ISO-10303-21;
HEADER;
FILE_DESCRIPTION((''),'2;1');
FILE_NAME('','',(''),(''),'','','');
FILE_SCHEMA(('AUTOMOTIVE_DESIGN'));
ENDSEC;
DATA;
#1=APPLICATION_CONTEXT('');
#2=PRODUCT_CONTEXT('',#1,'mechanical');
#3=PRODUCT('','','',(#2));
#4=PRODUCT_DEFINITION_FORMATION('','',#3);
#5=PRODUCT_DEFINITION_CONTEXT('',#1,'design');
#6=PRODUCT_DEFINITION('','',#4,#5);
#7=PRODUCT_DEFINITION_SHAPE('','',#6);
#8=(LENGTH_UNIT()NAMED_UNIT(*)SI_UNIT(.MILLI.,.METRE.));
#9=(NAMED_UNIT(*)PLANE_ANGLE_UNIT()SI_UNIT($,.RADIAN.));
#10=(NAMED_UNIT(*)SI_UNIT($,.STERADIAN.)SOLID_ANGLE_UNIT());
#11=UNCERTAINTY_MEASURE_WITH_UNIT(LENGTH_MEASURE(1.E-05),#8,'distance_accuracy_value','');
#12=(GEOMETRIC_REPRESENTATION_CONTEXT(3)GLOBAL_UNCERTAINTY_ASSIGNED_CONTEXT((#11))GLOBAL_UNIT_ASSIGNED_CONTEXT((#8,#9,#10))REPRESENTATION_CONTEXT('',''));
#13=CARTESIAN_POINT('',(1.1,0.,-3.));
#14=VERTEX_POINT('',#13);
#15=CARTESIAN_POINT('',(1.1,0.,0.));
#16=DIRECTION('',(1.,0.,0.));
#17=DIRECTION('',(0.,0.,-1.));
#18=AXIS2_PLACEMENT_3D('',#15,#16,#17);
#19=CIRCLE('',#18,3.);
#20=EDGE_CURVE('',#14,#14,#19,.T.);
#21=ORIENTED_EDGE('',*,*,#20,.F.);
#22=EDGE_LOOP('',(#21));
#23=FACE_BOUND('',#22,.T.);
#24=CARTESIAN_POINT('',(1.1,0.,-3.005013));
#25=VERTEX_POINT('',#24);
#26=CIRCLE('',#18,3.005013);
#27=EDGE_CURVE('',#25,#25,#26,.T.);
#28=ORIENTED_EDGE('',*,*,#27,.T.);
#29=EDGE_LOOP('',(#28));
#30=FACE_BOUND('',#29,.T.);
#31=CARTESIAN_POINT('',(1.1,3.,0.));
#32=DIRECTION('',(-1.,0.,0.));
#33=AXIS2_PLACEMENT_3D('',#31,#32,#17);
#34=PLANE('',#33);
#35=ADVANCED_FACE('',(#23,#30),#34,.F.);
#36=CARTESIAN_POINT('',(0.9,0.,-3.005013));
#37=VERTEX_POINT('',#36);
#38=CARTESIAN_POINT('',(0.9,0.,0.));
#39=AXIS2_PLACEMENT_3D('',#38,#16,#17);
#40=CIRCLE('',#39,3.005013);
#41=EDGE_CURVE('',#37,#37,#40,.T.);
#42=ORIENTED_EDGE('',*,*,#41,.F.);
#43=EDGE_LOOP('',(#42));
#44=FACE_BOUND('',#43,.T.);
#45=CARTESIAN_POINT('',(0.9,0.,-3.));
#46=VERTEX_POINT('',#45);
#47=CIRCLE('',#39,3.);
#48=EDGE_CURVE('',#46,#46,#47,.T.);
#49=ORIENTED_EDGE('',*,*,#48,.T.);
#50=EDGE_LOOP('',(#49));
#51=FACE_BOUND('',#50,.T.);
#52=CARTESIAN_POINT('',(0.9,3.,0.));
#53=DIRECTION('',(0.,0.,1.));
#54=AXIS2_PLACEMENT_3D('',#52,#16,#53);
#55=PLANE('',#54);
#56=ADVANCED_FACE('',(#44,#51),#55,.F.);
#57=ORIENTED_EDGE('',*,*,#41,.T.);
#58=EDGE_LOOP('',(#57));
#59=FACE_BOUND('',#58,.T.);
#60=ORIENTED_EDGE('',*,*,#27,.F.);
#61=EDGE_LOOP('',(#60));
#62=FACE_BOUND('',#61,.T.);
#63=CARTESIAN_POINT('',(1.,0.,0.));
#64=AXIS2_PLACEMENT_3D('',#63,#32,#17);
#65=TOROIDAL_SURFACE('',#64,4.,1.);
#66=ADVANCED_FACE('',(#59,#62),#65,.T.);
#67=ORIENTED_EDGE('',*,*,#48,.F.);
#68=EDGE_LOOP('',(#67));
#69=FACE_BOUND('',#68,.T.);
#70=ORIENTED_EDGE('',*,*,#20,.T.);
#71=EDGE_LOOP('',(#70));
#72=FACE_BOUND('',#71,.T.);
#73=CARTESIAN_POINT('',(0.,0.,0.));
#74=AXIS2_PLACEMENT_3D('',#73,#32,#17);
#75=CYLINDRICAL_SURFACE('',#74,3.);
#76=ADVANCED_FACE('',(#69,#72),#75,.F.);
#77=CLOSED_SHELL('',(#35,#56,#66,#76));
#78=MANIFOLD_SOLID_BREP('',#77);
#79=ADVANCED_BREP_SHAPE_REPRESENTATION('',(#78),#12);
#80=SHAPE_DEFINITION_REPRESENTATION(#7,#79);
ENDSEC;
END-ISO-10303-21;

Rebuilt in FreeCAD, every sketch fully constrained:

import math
import FreeCAD as App
import Part
import Sketcher
Q = App.Units.Quantity

doc = App.newDocument("Part")
params = doc.addObject("Spreadsheet::Sheet", "Params")
for row, (alias, value) in enumerate([
    ("sketch1_radius", "1 mm"),
    ("sketch1_width", "0.2 mm"),
    ("revolution_angle", "360 deg"),
], start=1):
    params.set(f"A{row}", alias)
    params.set(f"B{row}", "=" + value)
    params.setAlias(f"B{row}", alias)

body = doc.addObject("PartDesign::Body", "Body")

# Sketch on XY plane
sketch1 = doc.addObject("Sketcher::SketchObject", "Sketch")
body.addObject(sketch1)
sketch1.AttachmentSupport = (doc.XY_Plane, [""])
sketch1.MapMode = "FlatFace"
sketch1.addGeometry([
    Part.LineSegment(App.Vector(0.9, 3, 0), App.Vector(1.1, 3, 0)),
    Part.LineSegment(App.Vector(1.1, 3, 0), App.Vector(1.1, 3.005, 0)),
    Part.ArcOfCircle(Part.Circle(App.Vector(1, 4, 0), App.Vector(0, 0, 1), 1), math.radians(-84), math.radians(264)),
    Part.LineSegment(App.Vector(0.9, 3.005, 0), App.Vector(0.9, 3, 0)),
], False)
sketch1.addConstraint([
    Sketcher.Constraint("Coincident", 0, 2, 1, 1),
    Sketcher.Constraint("Coincident", 1, 2, 2, 1),
    Sketcher.Constraint("Coincident", 2, 2, 3, 1),
    Sketcher.Constraint("Coincident", 3, 2, 0, 1),
    Sketcher.Constraint("Horizontal", 0),
    Sketcher.Constraint("Vertical", 1),
    Sketcher.Constraint("Vertical", 3),
    Sketcher.Constraint("Horizontal", 1, 2, 2, 2),
    Sketcher.Constraint("Radius", 2, Q("1 mm")),
    Sketcher.Constraint("DistanceX", 0, 1, 0, 2, Q("0.2 mm")),
    Sketcher.Constraint("DistanceX", -1, 1, 2, 3, Q("1 mm")),
    Sketcher.Constraint("DistanceY", -1, 1, 2, 3, Q("4 mm")),
    Sketcher.Constraint("DistanceY", -1, 1, 0, 2, Q("3 mm")),
])
sketch1.setExpression("Constraints[8]", "Params.sketch1_radius")
sketch1.setExpression("Constraints[9]", "Params.sketch1_width")
revolution = doc.addObject("PartDesign::Revolution", "Revolution")
body.addObject(revolution)
revolution.Profile = sketch1
revolution.ReferenceAxis = (sketch1, ["H_Axis"])
revolution.setExpression("Angle", "Params.revolution_angle")

doc.recompute()
